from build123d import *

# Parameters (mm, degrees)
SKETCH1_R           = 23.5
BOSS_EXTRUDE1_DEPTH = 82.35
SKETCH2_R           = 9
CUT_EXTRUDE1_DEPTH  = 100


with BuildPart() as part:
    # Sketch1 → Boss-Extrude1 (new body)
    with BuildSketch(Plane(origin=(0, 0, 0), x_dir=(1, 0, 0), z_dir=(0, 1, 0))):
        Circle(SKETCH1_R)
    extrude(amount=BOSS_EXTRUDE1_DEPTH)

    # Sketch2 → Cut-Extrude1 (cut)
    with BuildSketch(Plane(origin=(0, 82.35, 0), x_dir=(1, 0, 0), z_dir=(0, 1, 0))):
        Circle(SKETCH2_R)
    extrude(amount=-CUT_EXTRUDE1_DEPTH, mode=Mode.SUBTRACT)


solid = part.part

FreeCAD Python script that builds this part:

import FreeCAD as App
import Part
import Sketcher
from FreeCAD import Vector
Q = App.Units.Quantity

doc = App.newDocument("Part")
body = doc.addObject("PartDesign::Body", "Body")

# Sketch on XZ plane
sketch1 = doc.addObject("Sketcher::SketchObject", "Sketch")
body.addObject(sketch1)
sketch1.AttachmentSupport = (doc.XZ_Plane, [""])
sketch1.MapMode = "FlatFace"
sketch1.addGeometry(Part.Circle(Vector(0, 0, 0), Vector(0, 0, 1), 24), False)
sketch1.addConstraint([
    Sketcher.Constraint("Coincident", 0, 3, -1, 1),
    Sketcher.Constraint("Diameter", 0, Q("47 mm")),
])
pad1 = doc.addObject("PartDesign::Pad", "Pad")
body.addObject(pad1)
pad1.Profile = sketch1
pad1.Length = 82.35
pad1.Reversed = True

# Sketch on XZ plane
sketch2 = doc.addObject("Sketcher::SketchObject", "Sketch001")
body.addObject(sketch2)
sketch2.AttachmentSupport = (doc.XZ_Plane, [""])
sketch2.MapMode = "FlatFace"
sketch2.AttachmentOffset = App.Placement(Vector(0, 0, -82.35), App.Rotation())
sketch2.addGeometry(Part.Circle(Vector(0, 0, 0), Vector(0, 0, 1), 9), False)
sketch2.addConstraint([
    Sketcher.Constraint("Coincident", 0, 3, -1, 1),
    Sketcher.Constraint("Diameter", 0, Q("18 mm")),
])
pocket1 = doc.addObject("PartDesign::Pocket", "Pocket")
body.addObject(pocket1)
pocket1.Profile = sketch2
pocket1.Length = 100
pocket1.Reversed = True

doc.recompute()
